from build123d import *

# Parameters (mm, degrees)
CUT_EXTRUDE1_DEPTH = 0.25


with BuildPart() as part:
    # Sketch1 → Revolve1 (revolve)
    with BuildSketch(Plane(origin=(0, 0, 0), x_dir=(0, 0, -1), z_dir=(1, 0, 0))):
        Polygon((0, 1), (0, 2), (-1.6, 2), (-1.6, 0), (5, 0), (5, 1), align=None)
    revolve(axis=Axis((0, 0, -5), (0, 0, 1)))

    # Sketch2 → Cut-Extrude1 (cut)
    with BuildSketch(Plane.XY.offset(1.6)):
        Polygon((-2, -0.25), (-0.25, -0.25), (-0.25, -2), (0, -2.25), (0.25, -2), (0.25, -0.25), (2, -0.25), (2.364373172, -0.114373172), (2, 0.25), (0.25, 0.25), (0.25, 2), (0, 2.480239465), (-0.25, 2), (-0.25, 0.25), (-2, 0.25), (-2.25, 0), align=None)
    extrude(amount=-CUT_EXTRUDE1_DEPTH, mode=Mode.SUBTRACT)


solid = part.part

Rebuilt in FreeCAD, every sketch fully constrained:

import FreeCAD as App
import Part
import Sketcher

doc = App.newDocument("Part")
body = doc.addObject("PartDesign::Body", "Body")

sketch1 = body.newObject("Sketcher::SketchObject", "Sketch")
sketch1.AttachmentSupport = (doc.getObject("YZ_Plane"), [""])
sketch1.MapMode = "FlatFace"
sketch1.addGeometry([
    Part.LineSegment(App.Vector(1, 0, 0), App.Vector(2, 0, 0)),
    Part.LineSegment(App.Vector(2, 0, 0), App.Vector(2, 1.6, 0)),
    Part.LineSegment(App.Vector(2, 1.6, 0), App.Vector(0, 1.6, 0)),
    Part.LineSegment(App.Vector(0, 1.6, 0), App.Vector(0, -5, 0)),
    Part.LineSegment(App.Vector(0, -5, 0), App.Vector(1, -5, 0)),
    Part.LineSegment(App.Vector(1, -5, 0), App.Vector(1, 0, 0)),
], False)
sketch1.addConstraint([
    Sketcher.Constraint("Coincident", 0, 2, 1, 1),
    Sketcher.Constraint("Coincident", 1, 2, 2, 1),
    Sketcher.Constraint("Coincident", 2, 2, 3, 1),
    Sketcher.Constraint("Coincident", 3, 2, 4, 1),
    Sketcher.Constraint("Coincident", 4, 2, 5, 1),
    Sketcher.Constraint("Coincident", 5, 2, 0, 1),
    Sketcher.Constraint("Horizontal", 0),
    Sketcher.Constraint("Vertical", 1),
    Sketcher.Constraint("Horizontal", 2),
    Sketcher.Constraint("Vertical", 3),
    Sketcher.Constraint("Horizontal", 4),
    Sketcher.Constraint("Vertical", 5),
    Sketcher.Constraint("PointOnObject", 0, 2, -1),
    Sketcher.Constraint("PointOnObject", 2, 2, -2),
    Sketcher.Constraint("Equal", 0, 4),
    Sketcher.Constraint("DistanceX", 0, 1, 0, 2, 1.0),
    Sketcher.Constraint("DistanceY", 5, 1, 5, 2, 5.0),
    Sketcher.Constraint("DistanceY", 1, 1, 1, 2, 1.6),
])
revolution = body.newObject("PartDesign::Revolution", "Revolution")
revolution.Profile = sketch1
revolution.ReferenceAxis = (sketch1, ["V_Axis"])
revolution.Angle = 360

sketch2 = body.newObject("Sketcher::SketchObject", "Sketch001")
sketch2.AttachmentSupport = (doc.getObject("XY_Plane"), [""])
sketch2.MapMode = "FlatFace"
sketch2.AttachmentOffset = App.Placement(App.Vector(0, 0, 1.6), App.Rotation())
sketch2.addGeometry([
    Part.LineSegment(App.Vector(-2, -0.25, 0), App.Vector(-0.25, -0.25, 0)),
    Part.LineSegment(App.Vector(-0.25, -0.25, 0), App.Vector(-0.25, -2, 0)),
    Part.LineSegment(App.Vector(-0.25, -2, 0), App.Vector(0, -2.25, 0)),
    Part.LineSegment(App.Vector(0, -2.25, 0), App.Vector(0.25, -2, 0)),
    Part.LineSegment(App.Vector(0.25, -2, 0), App.Vector(0.25, -0.25, 0)),
    Part.LineSegment(App.Vector(0.25, -0.25, 0), App.Vector(2, -0.25, 0)),
    Part.LineSegment(App.Vector(2, -0.25, 0), App.Vector(2.36, -0.11, 0)),
    Part.LineSegment(App.Vector(2.36, -0.11, 0), App.Vector(2, 0.25, 0)),
    Part.LineSegment(App.Vector(2, 0.25, 0), App.Vector(0.25, 0.25, 0)),
    Part.LineSegment(App.Vector(0.25, 0.25, 0), App.Vector(0.25, 2, 0)),
    Part.LineSegment(App.Vector(0.25, 2, 0), App.Vector(0, 2.48, 0)),
    Part.LineSegment(App.Vector(0, 2.48, 0), App.Vector(-0.25, 2, 0)),
    Part.LineSegment(App.Vector(-0.25, 2, 0), App.Vector(-0.25, 0.25, 0)),
    Part.LineSegment(App.Vector(-0.25, 0.25, 0), App.Vector(-2, 0.25, 0)),
    Part.LineSegment(App.Vector(-2, 0.25, 0), App.Vector(-2.25, 0, 0)),
    Part.LineSegment(App.Vector(-2.25, 0, 0), App.Vector(-2, -0.25, 0)),
], False)
sketch2.addConstraint([
    Sketcher.Constraint("Coincident", 0, 2, 1, 1),
    Sketcher.Constraint("Coincident", 1, 2, 2, 1),
    Sketcher.Constraint("Coincident", 2, 2, 3, 1),
    Sketcher.Constraint("Coincident", 3, 2, 4, 1),
    Sketcher.Constraint("Coincident", 4, 2, 5, 1),
    Sketcher.Constraint("Coincident", 5, 2, 6, 1),
    Sketcher.Constraint("Coincident", 6, 2, 7, 1),
    Sketcher.Constraint("Coincident", 7, 2, 8, 1),
    Sketcher.Constraint("Coincident", 8, 2, 9, 1),
    Sketcher.Constraint("Coincident", 9, 2, 10, 1),
    Sketcher.Constraint("Coincident", 10, 2, 11, 1),
    Sketcher.Constraint("Coincident", 11, 2, 12, 1),
    Sketcher.Constraint("Coincident", 12, 2, 13, 1),
    Sketcher.Constraint("Coincident", 13, 2, 14, 1),
    Sketcher.Constraint("Coincident", 14, 2, 15, 1),
    Sketcher.Constraint("Coincident", 15, 2, 0, 1),
    Sketcher.Constraint("Horizontal", 0),
    Sketcher.Constraint("Vertical", 1),
    Sketcher.Constraint("Vertical", 4),
    Sketcher.Constraint("Horizontal", 5),
    Sketcher.Constraint("Horizontal", 8),
    Sketcher.Constraint("Vertical", 9),
    Sketcher.Constraint("Vertical", 12),
    Sketcher.Constraint("Horizontal", 13),
    Sketcher.Constraint("Symmetric", 0, 2, 8, 2, -1, 1),
    Sketcher.Constraint("Symmetric", 3, 2, 11, 2, -1, 1),
    Sketcher.Constraint("Symmetric", 5, 2, 13, 2, -1, 1),
    Sketcher.Constraint("Symmetric", 1, 2, 3, 2, -2),
    Sketcher.Constraint("Symmetric", 7, 2, 13, 2, -2),
    Sketcher.Constraint("PointOnObject", 2, 2, -2),
    Sketcher.Constraint("PointOnObject", 10, 2, -2),
    Sketcher.Constraint("PointOnObject", 14, 2, -1),
    Sketcher.Constraint("Perpendicular", 2, 3),
    Sketcher.Constraint("Perpendicular", 3, 7),
    Sketcher.Constraint("Perpendicular", 7, 14),
    Sketcher.Constraint("Perpendicular", 14, 15),
    Sketcher.Constraint("Horizontal", 9, 2, 11, 2),
    Sketcher.Constraint("Equal", 13, 1),
    Sketcher.Constraint("Equal", 3, 14),
    Sketcher.Constraint("DistanceY", 1, 2, -1, 1, 2.0),
    Sketcher.Constraint("DistanceX", 0, 1, 0, 2, 1.75),
    Sketcher.Constraint("Distance", 7, 0.515301),
    Sketcher.Constraint("DistanceY", -1, 1, 10, 2, 2.480239),
])
pocket1 = body.newObject("PartDesign::Pocket", "Pocket")
pocket1.Profile = sketch2
pocket1.Length = 0.25

doc.recompute()
